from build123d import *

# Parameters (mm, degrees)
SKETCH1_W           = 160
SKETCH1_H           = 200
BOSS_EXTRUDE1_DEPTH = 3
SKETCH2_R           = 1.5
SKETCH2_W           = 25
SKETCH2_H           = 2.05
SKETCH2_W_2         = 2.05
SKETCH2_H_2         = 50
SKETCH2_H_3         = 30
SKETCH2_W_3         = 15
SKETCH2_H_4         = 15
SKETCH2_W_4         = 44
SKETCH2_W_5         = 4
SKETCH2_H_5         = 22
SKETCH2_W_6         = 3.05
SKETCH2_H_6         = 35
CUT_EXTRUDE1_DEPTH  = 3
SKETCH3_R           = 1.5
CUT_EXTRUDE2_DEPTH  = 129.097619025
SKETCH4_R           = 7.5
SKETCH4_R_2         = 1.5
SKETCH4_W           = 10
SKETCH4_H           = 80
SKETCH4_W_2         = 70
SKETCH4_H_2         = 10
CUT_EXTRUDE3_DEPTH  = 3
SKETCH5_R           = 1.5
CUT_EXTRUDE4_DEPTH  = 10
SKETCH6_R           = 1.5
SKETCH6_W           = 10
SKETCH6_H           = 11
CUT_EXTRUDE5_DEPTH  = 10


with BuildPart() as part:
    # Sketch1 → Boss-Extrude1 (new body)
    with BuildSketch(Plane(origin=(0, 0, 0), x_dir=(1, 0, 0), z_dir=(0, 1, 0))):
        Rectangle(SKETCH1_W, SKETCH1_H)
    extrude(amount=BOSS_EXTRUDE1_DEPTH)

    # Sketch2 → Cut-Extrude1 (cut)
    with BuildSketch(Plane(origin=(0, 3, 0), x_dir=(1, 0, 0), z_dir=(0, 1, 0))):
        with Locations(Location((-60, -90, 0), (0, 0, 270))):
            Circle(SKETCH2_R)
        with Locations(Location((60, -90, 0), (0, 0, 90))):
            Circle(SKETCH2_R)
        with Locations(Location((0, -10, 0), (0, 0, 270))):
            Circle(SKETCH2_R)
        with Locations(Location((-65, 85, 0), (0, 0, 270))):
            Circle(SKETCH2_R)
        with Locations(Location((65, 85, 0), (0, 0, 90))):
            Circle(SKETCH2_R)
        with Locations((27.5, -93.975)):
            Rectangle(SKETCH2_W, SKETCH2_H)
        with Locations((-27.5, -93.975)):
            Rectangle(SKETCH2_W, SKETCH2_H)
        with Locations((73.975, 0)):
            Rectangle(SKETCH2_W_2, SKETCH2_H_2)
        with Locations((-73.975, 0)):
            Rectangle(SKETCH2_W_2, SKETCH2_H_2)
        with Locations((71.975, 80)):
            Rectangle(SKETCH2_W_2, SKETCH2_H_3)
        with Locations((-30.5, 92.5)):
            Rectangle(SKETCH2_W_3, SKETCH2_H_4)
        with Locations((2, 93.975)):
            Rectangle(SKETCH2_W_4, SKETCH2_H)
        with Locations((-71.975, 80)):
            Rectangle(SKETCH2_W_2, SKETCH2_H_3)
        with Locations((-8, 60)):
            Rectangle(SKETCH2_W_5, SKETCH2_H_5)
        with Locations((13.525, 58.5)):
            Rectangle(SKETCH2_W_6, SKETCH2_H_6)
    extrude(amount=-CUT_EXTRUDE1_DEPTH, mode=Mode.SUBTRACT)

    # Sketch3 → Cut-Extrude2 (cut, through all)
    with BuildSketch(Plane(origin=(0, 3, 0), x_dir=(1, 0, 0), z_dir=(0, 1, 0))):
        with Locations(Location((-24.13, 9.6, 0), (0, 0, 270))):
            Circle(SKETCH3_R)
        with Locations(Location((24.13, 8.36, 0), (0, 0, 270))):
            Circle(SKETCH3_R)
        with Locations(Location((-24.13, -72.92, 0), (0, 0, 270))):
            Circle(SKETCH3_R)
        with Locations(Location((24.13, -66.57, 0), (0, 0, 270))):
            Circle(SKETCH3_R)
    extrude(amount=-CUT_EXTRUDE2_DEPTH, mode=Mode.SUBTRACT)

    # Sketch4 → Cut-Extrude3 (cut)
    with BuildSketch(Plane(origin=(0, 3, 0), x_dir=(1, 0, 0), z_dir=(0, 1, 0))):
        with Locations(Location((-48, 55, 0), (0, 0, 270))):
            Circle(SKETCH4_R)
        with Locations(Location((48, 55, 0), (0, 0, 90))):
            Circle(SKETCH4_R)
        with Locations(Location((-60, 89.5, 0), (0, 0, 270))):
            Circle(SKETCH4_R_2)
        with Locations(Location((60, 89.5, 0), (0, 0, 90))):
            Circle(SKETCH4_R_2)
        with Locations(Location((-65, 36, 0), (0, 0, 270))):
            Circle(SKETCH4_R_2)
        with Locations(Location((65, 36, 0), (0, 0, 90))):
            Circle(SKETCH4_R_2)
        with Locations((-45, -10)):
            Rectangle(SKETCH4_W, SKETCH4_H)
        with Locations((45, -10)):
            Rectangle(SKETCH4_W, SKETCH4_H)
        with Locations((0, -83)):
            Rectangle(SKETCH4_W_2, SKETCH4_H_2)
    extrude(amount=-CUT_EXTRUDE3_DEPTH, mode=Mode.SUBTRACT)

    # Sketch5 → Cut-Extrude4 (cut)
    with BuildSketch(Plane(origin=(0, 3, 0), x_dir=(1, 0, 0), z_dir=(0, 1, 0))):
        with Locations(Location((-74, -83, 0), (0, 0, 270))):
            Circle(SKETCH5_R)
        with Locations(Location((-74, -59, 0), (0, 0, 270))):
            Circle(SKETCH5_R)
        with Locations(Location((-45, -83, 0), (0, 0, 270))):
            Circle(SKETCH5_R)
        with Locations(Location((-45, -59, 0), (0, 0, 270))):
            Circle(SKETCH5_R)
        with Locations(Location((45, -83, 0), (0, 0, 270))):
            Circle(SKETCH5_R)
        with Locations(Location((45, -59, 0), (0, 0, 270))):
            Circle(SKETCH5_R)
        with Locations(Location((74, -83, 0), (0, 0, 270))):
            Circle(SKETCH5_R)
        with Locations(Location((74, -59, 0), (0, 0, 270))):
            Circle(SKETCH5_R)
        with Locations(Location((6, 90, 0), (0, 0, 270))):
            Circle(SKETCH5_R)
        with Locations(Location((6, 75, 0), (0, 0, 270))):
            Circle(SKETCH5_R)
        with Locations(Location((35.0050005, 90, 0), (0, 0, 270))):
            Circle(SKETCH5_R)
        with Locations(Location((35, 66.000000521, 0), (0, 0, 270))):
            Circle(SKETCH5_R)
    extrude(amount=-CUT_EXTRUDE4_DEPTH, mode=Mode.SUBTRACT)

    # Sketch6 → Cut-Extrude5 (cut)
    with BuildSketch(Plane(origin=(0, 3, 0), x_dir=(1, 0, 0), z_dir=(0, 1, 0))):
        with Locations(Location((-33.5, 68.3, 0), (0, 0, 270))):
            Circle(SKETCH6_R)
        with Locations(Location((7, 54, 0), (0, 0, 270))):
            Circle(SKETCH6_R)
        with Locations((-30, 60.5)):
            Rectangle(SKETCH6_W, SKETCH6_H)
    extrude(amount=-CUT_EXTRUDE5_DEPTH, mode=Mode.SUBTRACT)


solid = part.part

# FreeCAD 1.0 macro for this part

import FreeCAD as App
import Part
import Sketcher
from FreeCAD import Vector
Q = App.Units.Quantity


def add_polygon(sketch, points):
    """Adds a closed chain of lines whose ends are joined by coincident constraints."""
    first, n = sketch.GeometryCount, len(points)
    for a, b in zip(points, points[1:] + points[:1]):
        sketch.addGeometry(Part.LineSegment(App.Vector(*a, 0), App.Vector(*b, 0)), False)
    for i in range(n):
        sketch.addConstraint(Sketcher.Constraint("Coincident", first + i, 2, first + (i + 1) % n, 1))

doc = App.newDocument("Part")
body = doc.addObject("PartDesign::Body", "Body")

# Sketch on XZ plane
sketch1 = body.newObject("Sketcher::SketchObject", "Sketch")
sketch1.AttachmentSupport = (doc.getObject("XZ_Plane"), [""])
sketch1.MapMode = "FlatFace"
add_polygon(sketch1, [(-80, -100), (-80, 100), (80, 100), (80, -100)])  # lines 0-3
sketch1.addConstraint(Sketcher.Constraint("Vertical", 0))
sketch1.addConstraint(Sketcher.Constraint("Horizontal", 1))
sketch1.addConstraint(Sketcher.Constraint("Vertical", 2))
sketch1.addConstraint(Sketcher.Constraint("Horizontal", 3))
sketch1.addConstraint(Sketcher.Constraint("Symmetric", 0, 2, 2, 2, -1, 1))
sketch1.addConstraint(Sketcher.Constraint("DistanceX", 1, 1, 1, 2, Q("160 mm")))
sketch1.addConstraint(Sketcher.Constraint("DistanceY", 0, 1, 0, 2, Q("200 mm")))
pad1 = body.newObject("PartDesign::Pad", "Pad")
pad1.Profile = sketch1
pad1.Length = 3
pad1.Reversed = True

# Sketch on XZ plane
sketch2 = body.newObject("Sketcher::SketchObject", "Sketch001")
sketch2.AttachmentSupport = (doc.getObject("XZ_Plane"), [""])
sketch2.MapMode = "FlatFace"
sketch2.AttachmentOffset = App.Placement(Vector(0, 0, -3), App.Rotation())
sketch2.addGeometry(Part.Circle(Vector(-60, 90, 0), Vector(0, 0, 1), 1.5), False)  # 0
sketch2.addGeometry(Part.Circle(Vector(60, 90, 0), Vector(0, 0, 1), 1.5), False)  # 1
sketch2.addGeometry(Part.Circle(Vector(0, 10, 0), Vector(0, 0, 1), 1.5), False)  # 2
sketch2.addGeometry(Part.Circle(Vector(-65, -85, 0), Vector(0, 0, 1), 1.5), False)  # 3
sketch2.addGeometry(Part.Circle(Vector(65, -85, 0), Vector(0, 0, 1), 1.5), False)  # 4
add_polygon(sketch2, [(15, 92.95), (15, 95), (40, 95), (40, 92.95)])  # lines 5-8
add_polygon(sketch2, [(-40, 92.95), (-40, 95), (-15, 95), (-15, 92.95)])  # lines 9-12
add_polygon(sketch2, [(72.95, -25), (72.95, 25), (75, 25), (75, -25)])  # lines 13-16
add_polygon(sketch2, [(-75, -25), (-75, 25), (-72.95, 25), (-72.95, -25)])  # lines 17-20
add_polygon(sketch2, [(70.95, -95), (70.95, -65), (73, -65), (73, -95)])  # lines 21-24
add_polygon(sketch2, [(-38, -100), (-38, -85), (-23, -85), (-23, -100)])  # lines 25-28
add_polygon(sketch2, [(-20, -95), (-20, -92.95), (24, -92.95), (24, -95)])  # lines 29-32
add_polygon(sketch2, [(-73, -95), (-73, -65), (-70.95, -65), (-70.95, -95)])  # lines 33-36
add_polygon(sketch2, [(-10, -71), (-10, -49), (-6, -49), (-6, -71)])  # lines 37-40
add_polygon(sketch2, [(12, -76), (12, -41), (15.05, -41), (15.05, -76)])  # lines 41-44
sketch2.addConstraint(Sketcher.Constraint("Vertical", 5))
sketch2.addConstraint(Sketcher.Constraint("Horizontal", 6))
sketch2.addConstraint(Sketcher.Constraint("Vertical", 7))
sketch2.addConstraint(Sketcher.Constraint("Horizontal", 8))
sketch2.addConstraint(Sketcher.Constraint("Vertical", 9))
sketch2.addConstraint(Sketcher.Constraint("Horizontal", 10))
sketch2.addConstraint(Sketcher.Constraint("Vertical", 11))
sketch2.addConstraint(Sketcher.Constraint("Horizontal", 12))
sketch2.addConstraint(Sketcher.Constraint("Vertical", 13))
sketch2.addConstraint(Sketcher.Constraint("Horizontal", 14))
sketch2.addConstraint(Sketcher.Constraint("Vertical", 15))
sketch2.addConstraint(Sketcher.Constraint("Horizontal", 16))
sketch2.addConstraint(Sketcher.Constraint("Vertical", 17))
sketch2.addConstraint(Sketcher.Constraint("Horizontal", 18))
sketch2.addConstraint(Sketcher.Constraint("Vertical", 19))
sketch2.addConstraint(Sketcher.Constraint("Horizontal", 20))
sketch2.addConstraint(Sketcher.Constraint("Vertical", 21))
sketch2.addConstraint(Sketcher.Constraint("Horizontal", 22))
sketch2.addConstraint(Sketcher.Constraint("Vertical", 23))
sketch2.addConstraint(Sketcher.Constraint("Horizontal", 24))
sketch2.addConstraint(Sketcher.Constraint("Vertical", 25))
sketch2.addConstraint(Sketcher.Constraint("Horizontal", 26))
sketch2.addConstraint(Sketcher.Constraint("Vertical", 27))
sketch2.addConstraint(Sketcher.Constraint("Horizontal", 28))
sketch2.addConstraint(Sketcher.Constraint("Vertical", 29))
sketch2.addConstraint(Sketcher.Constraint("Horizontal", 30))
sketch2.addConstraint(Sketcher.Constraint("Vertical", 31))
sketch2.addConstraint(Sketcher.Constraint("Horizontal", 32))
sketch2.addConstraint(Sketcher.Constraint("Vertical", 33))
sketch2.addConstraint(Sketcher.Constraint("Horizontal", 34))
sketch2.addConstraint(Sketcher.Constraint("Vertical", 35))
sketch2.addConstraint(Sketcher.Constraint("Horizontal", 36))
sketch2.addConstraint(Sketcher.Constraint("Vertical", 37))
sketch2.addConstraint(Sketcher.Constraint("Horizontal", 38))
sketch2.addConstraint(Sketcher.Constraint("Vertical", 39))
sketch2.addConstraint(Sketcher.Constraint("Horizontal", 40))
sketch2.addConstraint(Sketcher.Constraint("Vertical", 41))
sketch2.addConstraint(Sketcher.Constraint("Horizontal", 42))
sketch2.addConstraint(Sketcher.Constraint("Vertical", 43))
sketch2.addConstraint(Sketcher.Constraint("Horizontal", 44))
sketch2.addConstraint(Sketcher.Constraint("Equal", 0, 1))
sketch2.addConstraint(Sketcher.Constraint("Equal", 1, 2))
sketch2.addConstraint(Sketcher.Constraint("Equal", 2, 3))
sketch2.addConstraint(Sketcher.Constraint("Equal", 3, 4))
sketch2.addConstraint(Sketcher.Constraint("Symmetric", 15, 2, 17, 2, -1, 1))
sketch2.addConstraint(Sketcher.Constraint("Symmetric", 13, 2, 19, 2, -1, 1))
sketch2.addConstraint(Sketcher.Constraint("Symmetric", 0, 3, 1, 3, -2))
sketch2.addConstraint(Sketcher.Constraint("Symmetric", 3, 3, 4, 3, -2))
sketch2.addConstraint(Sketcher.Constraint("Symmetric", 6, 2, 9, 2, -2))
sketch2.addConstraint(Sketcher.Constraint("Symmetric", 8, 2, 11, 2, -2))
sketch2.addConstraint(Sketcher.Constraint("Symmetric", 22, 2, 33, 2, -2))
sketch2.addConstraint(Sketcher.Constraint("Symmetric", 24, 2, 35, 2, -2))
sketch2.addConstraint(Sketcher.Constraint("PointOnObject", 2, 3, -2))
sketch2.addConstraint(Sketcher.Constraint("Horizontal", 14, 2, 17, 2))
sketch2.addConstraint(Sketcher.Constraint("Horizontal", 4, 3, 25, 2))
sketch2.addConstraint(Sketcher.Constraint("Horizontal", 24, 2, 31, 2))
sketch2.addConstraint(Sketcher.Constraint("Equal", 20, 22))
sketch2.addConstraint(Sketcher.Constraint("Equal", 36, 5))
sketch2.addConstraint(Sketcher.Constraint("Equal", 28, 25))
sketch2.addConstraint(Sketcher.Constraint("Equal", 11, 29))
sketch2.addConstraint(Sketcher.Constraint("Diameter", 0, Q("3 mm")))
sketch2.addConstraint(Sketcher.Constraint("DistanceX", 6, 1, 6, 2, Q("25 mm")))
sketch2.addConstraint(Sketcher.Constraint("DistanceX", 26, 1, 26, 2, Q("15 mm")))
sketch2.addConstraint(Sketcher.Constraint("DistanceX", 30, 1, 30, 2, Q("44 mm")))
sketch2.addConstraint(Sketcher.Constraint("DistanceX", 38, 1, 38, 2, Q("4 mm")))
sketch2.addConstraint(Sketcher.Constraint("DistanceY", 13, 1, 13, 2, Q("50 mm")))
sketch2.addConstraint(Sketcher.Constraint("DistanceY", 21, 1, 21, 2, Q("30 mm")))
sketch2.addConstraint(Sketcher.Constraint("DistanceY", 37, 1, 37, 2, Q("22 mm")))
sketch2.addConstraint(Sketcher.Constraint("DistanceY", 41, 1, 41, 2, Q("35 mm")))
sketch2.addConstraint(Sketcher.Constraint("DistanceX", 0, 3, -1, 1, Q("60 mm")))
sketch2.addConstraint(Sketcher.Constraint("DistanceY", -1, 1, 0, 3, Q("90 mm")))
sketch2.addConstraint(Sketcher.Constraint("DistanceY", -1, 1, 2, 3, Q("10 mm")))
sketch2.addConstraint(Sketcher.Constraint("DistanceX", 3, 3, -1, 1, Q("65 mm")))
sketch2.addConstraint(Sketcher.Constraint("DistanceY", 3, 3, -1, 1, Q("85 mm")))
sketch2.addConstraint(Sketcher.Constraint("DistanceX", -1, 1, 5, 2, Q("15 mm")))
sketch2.addConstraint(Sketcher.Constraint("DistanceY", -1, 1, 5, 2, Q("95 mm")))
sketch2.addConstraint(Sketcher.Constraint("DistanceX", -1, 1, 14, 2, Q("75 mm")))
sketch2.addConstraint(Sketcher.Constraint("DistanceY", 21, 2, -1, 1, Q("65 mm")))
sketch2.addConstraint(Sketcher.Constraint("DistanceX", -1, 1, 22, 2, Q("73 mm")))
sketch2.addConstraint(Sketcher.Constraint("DistanceX", 25, 2, -1, 1, Q("38 mm")))
sketch2.addConstraint(Sketcher.Constraint("DistanceX", 29, 2, -1, 1, Q("20 mm")))
sketch2.addConstraint(Sketcher.Constraint("DistanceX", 37, 2, -1, 1, Q("10 mm")))
sketch2.addConstraint(Sketcher.Constraint("DistanceY", 37, 2, -1, 1, Q("49 mm")))
sketch2.addConstraint(Sketcher.Constraint("DistanceX", -1, 1, 41, 2, Q("12 mm")))
sketch2.addConstraint(Sketcher.Constraint("DistanceY", 41, 2, -1, 1, Q("41 mm")))
sketch2.addConstraint(Sketcher.Constraint("DistanceX", 14, 1, 14, 2, Q("2.05 mm")))
sketch2.addConstraint(Sketcher.Constraint("DistanceX", 42, 1, 42, 2, Q("3.05 mm")))
pocket1 = body.newObject("PartDesign::Pocket", "Pocket")
pocket1.Profile = sketch2
pocket1.Length = 3
pocket1.Reversed = True

# Sketch on XZ plane
sketch3 = body.newObject("Sketcher::SketchObject", "Sketch002")
sketch3.AttachmentSupport = (doc.getObject("XZ_Plane"), [""])
sketch3.MapMode = "FlatFace"
sketch3.AttachmentOffset = App.Placement(Vector(0, 0, -3), App.Rotation())
sketch3.addGeometry(Part.Circle(Vector(-24.13, -9.6, 0), Vector(0, 0, 1), 1.5), False)
sketch3.addGeometry(Part.Circle(Vector(24.13, -8.36, 0), Vector(0, 0, 1), 1.5), False)
sketch3.addGeometry(Part.Circle(Vector(-24.13, 72.92, 0), Vector(0, 0, 1), 1.5), False)
sketch3.addGeometry(Part.Circle(Vector(24.13, 66.57, 0), Vector(0, 0, 1), 1.5), False)
sketch3.addConstraint(Sketcher.Constraint("Equal", 0, 1))
sketch3.addConstraint(Sketcher.Constraint("Equal", 1, 2))
sketch3.addConstraint(Sketcher.Constraint("Equal", 2, 3))
sketch3.addConstraint(Sketcher.Constraint("Vertical", 0, 3, 2, 3))
sketch3.addConstraint(Sketcher.Constraint("Vertical", 1, 3, 3, 3))
sketch3.addConstraint(Sketcher.Constraint("Diameter", 0, Q("3 mm")))
sketch3.addConstraint(Sketcher.Constraint("DistanceY", 0, 3, -1, 1, Q("9.6 mm")))
sketch3.addConstraint(Sketcher.Constraint("DistanceX", 0, 3, -1, 1, Q("24.13 mm")))
sketch3.addConstraint(Sketcher.Constraint("DistanceX", -1, 1, 1, 3, Q("24.13 mm")))
sketch3.addConstraint(Sketcher.Constraint("DistanceY", 1, 3, -1, 1, Q("8.36 mm")))
sketch3.addConstraint(Sketcher.Constraint("DistanceY", -1, 1, 2, 3, Q("72.92 mm")))
sketch3.addConstraint(Sketcher.Constraint("DistanceY", -1, 1, 3, 3, Q("66.57 mm")))
pocket2 = body.newObject("PartDesign::Pocket", "Pocket001")
pocket2.Profile = sketch3
pocket2.Type = "ThroughAll"
pocket2.Reversed = True

# Sketch on XZ plane
sketch4 = body.newObject("Sketcher::SketchObject", "Sketch003")
sketch4.AttachmentSupport = (doc.getObject("XZ_Plane"), [""])
sketch4.MapMode = "FlatFace"
sketch4.AttachmentOffset = App.Placement(Vector(0, 0, -3), App.Rotation())
sketch4.addGeometry(Part.Circle(Vector(-48, -55, 0), Vector(0, 0, 1), 7.5), False)  # 0
sketch4.addGeometry(Part.Circle(Vector(48, -55, 0), Vector(0, 0, 1), 7.5), False)  # 1
sketch4.addGeometry(Part.Circle(Vector(-60, -89.5, 0), Vector(0, 0, 1), 1.5), False)  # 2
sketch4.addGeometry(Part.Circle(Vector(60, -89.5, 0), Vector(0, 0, 1), 1.5), False)  # 3
sketch4.addGeometry(Part.Circle(Vector(-65, -36, 0), Vector(0, 0, 1), 1.5), False)  # 4
sketch4.addGeometry(Part.Circle(Vector(65, -36, 0), Vector(0, 0, 1), 1.5), False)  # 5
add_polygon(sketch4, [(-50, -30), (-50, 50), (-40, 50), (-40, -30)])  # lines 6-9
add_polygon(sketch4, [(40, -30), (40, 50), (50, 50), (50, -30)])  # lines 10-13
add_polygon(sketch4, [(-35, 78), (-35, 88), (35, 88), (35, 78)])  # lines 14-17
sketch4.addConstraint(Sketcher.Constraint("Vertical", 6))
sketch4.addConstraint(Sketcher.Constraint("Horizontal", 7))
sketch4.addConstraint(Sketcher.Constraint("Vertical", 8))
sketch4.addConstraint(Sketcher.Constraint("Horizontal", 9))
sketch4.addConstraint(Sketcher.Constraint("Vertical", 10))
sketch4.addConstraint(Sketcher.Constraint("Horizontal", 11))
sketch4.addConstraint(Sketcher.Constraint("Vertical", 12))
sketch4.addConstraint(Sketcher.Constraint("Horizontal", 13))
sketch4.addConstraint(Sketcher.Constraint("Vertical", 14))
sketch4.addConstraint(Sketcher.Constraint("Horizontal", 15))
sketch4.addConstraint(Sketcher.Constraint("Vertical", 16))
sketch4.addConstraint(Sketcher.Constraint("Horizontal", 17))
sketch4.addConstraint(Sketcher.Constraint("Equal", 0, 1))
sketch4.addConstraint(Sketcher.Constraint("Equal", 2, 3))
sketch4.addConstraint(Sketcher.Constraint("Equal", 3, 4))
sketch4.addConstraint(Sketcher.Constraint("Equal", 4, 5))
sketch4.addConstraint(Sketcher.Constraint("Symmetric", 0, 3, 1, 3, -2))
sketch4.addConstraint(Sketcher.Constraint("Symmetric", 2, 3, 3, 3, -2))
sketch4.addConstraint(Sketcher.Constraint("Symmetric", 4, 3, 5, 3, -2))
sketch4.addConstraint(Sketcher.Constraint("Symmetric", 7, 2, 10, 2, -2))
sketch4.addConstraint(Sketcher.Constraint("Symmetric", 9, 2, 12, 2, -2))
sketch4.addConstraint(Sketcher.Constraint("Equal", 13, 14))
sketch4.addConstraint(Sketcher.Constraint("Diameter", 0, Q("15 mm")))
sketch4.addConstraint(Sketcher.Constraint("Diameter", 2, Q("3 mm")))
sketch4.addConstraint(Sketcher.Constraint("DistanceX", 7, 1, 7, 2, Q("10 mm")))
sketch4.addConstraint(Sketcher.Constraint("DistanceX", 15, 1, 15, 2, Q("70 mm")))
sketch4.addConstraint(Sketcher.Constraint("DistanceY", 6, 1, 6, 2, Q("80 mm")))
sketch4.addConstraint(Sketcher.Constraint("DistanceX", 0, 3, -1, 1, Q("48 mm")))
sketch4.addConstraint(Sketcher.Constraint("DistanceY", 0, 3, -1, 1, Q("55 mm")))
sketch4.addConstraint(Sketcher.Constraint("DistanceX", 2, 3, -1, 1, Q("60 mm")))
sketch4.addConstraint(Sketcher.Constraint("DistanceX", 4, 3, -1, 1, Q("65 mm")))
sketch4.addConstraint(Sketcher.Constraint("DistanceY", 4, 3, -1, 1, Q("36 mm")))
sketch4.addConstraint(Sketcher.Constraint("DistanceX", 6, 2, -1, 1, Q("50 mm")))
sketch4.addConstraint(Sketcher.Constraint("DistanceY", -1, 1, 6, 2, Q("50 mm")))
sketch4.addConstraint(Sketcher.Constraint("DistanceX", 14, 2, -1, 1, Q("35 mm")))
sketch4.addConstraint(Sketcher.Constraint("DistanceY", -1, 1, 14, 2, Q("88 mm")))
sketch4.addConstraint(Sketcher.Constraint("DistanceY", 2, 3, -1, 1, Q("89.5 mm")))
pocket3 = body.newObject("PartDesign::Pocket", "Pocket002")
pocket3.Profile = sketch4
pocket3.Length = 3
pocket3.Reversed = True

# Sketch on XZ plane
sketch5 = body.newObject("Sketcher::SketchObject", "Sketch004")
sketch5.AttachmentSupport = (doc.getObject("XZ_Plane"), [""])
sketch5.MapMode = "FlatFace"
sketch5.AttachmentOffset = App.Placement(Vector(0, 0, -3), App.Rotation())
sketch5.addGeometry(Part.Circle(Vector(-74, 83, 0), Vector(0, 0, 1), 1.5), False)
sketch5.addGeometry(Part.Circle(Vector(-74, 59, 0), Vector(0, 0, 1), 1.5), False)
sketch5.addGeometry(Part.Circle(Vector(-45, 83, 0), Vector(0, 0, 1), 1.5), False)
sketch5.addGeometry(Part.Circle(Vector(-45, 59, 0), Vector(0, 0, 1), 1.5), False)
sketch5.addGeometry(Part.Circle(Vector(45, 83, 0), Vector(0, 0, 1), 1.5), False)
sketch5.addGeometry(Part.Circle(Vector(45, 59, 0), Vector(0, 0, 1), 1.5), False)
sketch5.addGeometry(Part.Circle(Vector(74, 83, 0), Vector(0, 0, 1), 1.5), False)
sketch5.addGeometry(Part.Circle(Vector(74, 59, 0), Vector(0, 0, 1), 1.5), False)
sketch5.addGeometry(Part.Circle(Vector(6, -90, 0), Vector(0, 0, 1), 1.5), False)
sketch5.addGeometry(Part.Circle(Vector(6, -75, 0), Vector(0, 0, 1), 1.5), False)
sketch5.addGeometry(Part.Circle(Vector(35.005001, -90, 0), Vector(0, 0, 1), 1.5), False)
sketch5.addGeometry(Part.Circle(Vector(35, -66.000001, 0), Vector(0, 0, 1), 1.5), False)
sketch5.addConstraint(Sketcher.Constraint("Equal", 0, 1))
sketch5.addConstraint(Sketcher.Constraint("Equal", 1, 2))
sketch5.addConstraint(Sketcher.Constraint("Equal", 2, 3))
sketch5.addConstraint(Sketcher.Constraint("Equal", 3, 4))
sketch5.addConstraint(Sketcher.Constraint("Equal", 4, 5))
sketch5.addConstraint(Sketcher.Constraint("Equal", 5, 6))
sketch5.addConstraint(Sketcher.Constraint("Equal", 6, 7))
sketch5.addConstraint(Sketcher.Constraint("Equal", 7, 8))
sketch5.addConstraint(Sketcher.Constraint("Equal", 8, 9))
sketch5.addConstraint(Sketcher.Constraint("Equal", 9, 10))
sketch5.addConstraint(Sketcher.Constraint("Equal", 10, 11))
sketch5.addConstraint(Sketcher.Constraint("Symmetric", 2, 3, 4, 3, -2))
sketch5.addConstraint(Sketcher.Constraint("Symmetric", 3, 3, 5, 3, -2))
sketch5.addConstraint(Sketcher.Constraint("Symmetric", 0, 3, 6, 3, -2))
sketch5.addConstraint(Sketcher.Constraint("Symmetric", 1, 3, 7, 3, -2))
sketch5.addConstraint(Sketcher.Constraint("Horizontal", 0, 3, 2, 3))
sketch5.addConstraint(Sketcher.Constraint("Horizontal", 1, 3, 3, 3))
sketch5.addConstraint(Sketcher.Constraint("Horizontal", 8, 3, 10, 3))
sketch5.addConstraint(Sketcher.Constraint("Vertical", 0, 3, 1, 3))
sketch5.addConstraint(Sketcher.Constraint("Vertical", 2, 3, 3, 3))
sketch5.addConstraint(Sketcher.Constraint("Vertical", 8, 3, 9, 3))
sketch5.addConstraint(Sketcher.Constraint("Diameter", 0, Q("3 mm")))
sketch5.addConstraint(Sketcher.Constraint("DistanceX", 0, 3, -1, 1, Q("74 mm")))
sketch5.addConstraint(Sketcher.Constraint("DistanceY", -1, 1, 0, 3, Q("83 mm")))
sketch5.addConstraint(Sketcher.Constraint("DistanceY", -1, 1, 1, 3, Q("59 mm")))
sketch5.addConstraint(Sketcher.Constraint("DistanceX", 2, 3, -1, 1, Q("45 mm")))
sketch5.addConstraint(Sketcher.Constraint("DistanceX", -1, 1, 8, 3, Q("6 mm")))
sketch5.addConstraint(Sketcher.Constraint("DistanceY", 8, 3, -1, 1, Q("90 mm")))
sketch5.addConstraint(Sketcher.Constraint("DistanceY", 9, 3, -1, 1, Q("75 mm")))
sketch5.addConstraint(Sketcher.Constraint("DistanceX", -1, 1, 11, 3, Q("35 mm")))
sketch5.addConstraint(Sketcher.Constraint("DistanceY", 11, 3, -1, 1, Q("66.000001 mm")))
sketch5.addConstraint(Sketcher.Constraint("DistanceX", -1, 1, 10, 3, Q("35.005001 mm")))
pocket4 = body.newObject("PartDesign::Pocket", "Pocket003")
pocket4.Profile = sketch5
pocket4.Length = 10
pocket4.Reversed = True

# Sketch on XZ plane
sketch6 = body.newObject("Sketcher::SketchObject", "Sketch005")
sketch6.AttachmentSupport = (doc.getObject("XZ_Plane"), [""])
sketch6.MapMode = "FlatFace"
sketch6.AttachmentOffset = App.Placement(Vector(0, 0, -3), App.Rotation())
sketch6.addGeometry(Part.Circle(Vector(-33.5, -68.3, 0), Vector(0, 0, 1), 1.5), False)  # 0
sketch6.addGeometry(Part.Circle(Vector(7, -54, 0), Vector(0, 0, 1), 1.5), False)  # 1
add_polygon(sketch6, [(-35, -66), (-35, -55), (-25, -55), (-25, -66)])  # lines 2-5
sketch6.addConstraint(Sketcher.Constraint("Vertical", 2))
sketch6.addConstraint(Sketcher.Constraint("Horizontal", 3))
sketch6.addConstraint(Sketcher.Constraint("Vertical", 4))
sketch6.addConstraint(Sketcher.Constraint("Horizontal", 5))
sketch6.addConstraint(Sketcher.Constraint("Equal", 0, 1))
sketch6.addConstraint(Sketcher.Constraint("Diameter", 0, Q("3 mm")))
sketch6.addConstraint(Sketcher.Constraint("DistanceX", 3, 1, 3, 2, Q("10 mm")))
sketch6.addConstraint(Sketcher.Constraint("DistanceY", 2, 1, 2, 2, Q("11 mm")))
sketch6.addConstraint(Sketcher.Constraint("DistanceX", -1, 1, 1, 3, Q("7 mm")))
sketch6.addConstraint(Sketcher.Constraint("DistanceY", 1, 3, -1, 1, Q("54 mm")))
sketch6.addConstraint(Sketcher.Constraint("DistanceX", 2, 2, -1, 1, Q("35 mm")))
sketch6.addConstraint(Sketcher.Constraint("DistanceY", 2, 2, -1, 1, Q("55 mm")))
sketch6.addConstraint(Sketcher.Constraint("DistanceX", 0, 3, -1, 1, Q("33.5 mm")))
sketch6.addConstraint(Sketcher.Constraint("DistanceY", 0, 3, -1, 1, Q("68.3 mm")))
pocket5 = body.newObject("PartDesign::Pocket", "Pocket004")
pocket5.Profile = sketch6
pocket5.Length = 10
pocket5.Reversed = True

doc.recompute()
